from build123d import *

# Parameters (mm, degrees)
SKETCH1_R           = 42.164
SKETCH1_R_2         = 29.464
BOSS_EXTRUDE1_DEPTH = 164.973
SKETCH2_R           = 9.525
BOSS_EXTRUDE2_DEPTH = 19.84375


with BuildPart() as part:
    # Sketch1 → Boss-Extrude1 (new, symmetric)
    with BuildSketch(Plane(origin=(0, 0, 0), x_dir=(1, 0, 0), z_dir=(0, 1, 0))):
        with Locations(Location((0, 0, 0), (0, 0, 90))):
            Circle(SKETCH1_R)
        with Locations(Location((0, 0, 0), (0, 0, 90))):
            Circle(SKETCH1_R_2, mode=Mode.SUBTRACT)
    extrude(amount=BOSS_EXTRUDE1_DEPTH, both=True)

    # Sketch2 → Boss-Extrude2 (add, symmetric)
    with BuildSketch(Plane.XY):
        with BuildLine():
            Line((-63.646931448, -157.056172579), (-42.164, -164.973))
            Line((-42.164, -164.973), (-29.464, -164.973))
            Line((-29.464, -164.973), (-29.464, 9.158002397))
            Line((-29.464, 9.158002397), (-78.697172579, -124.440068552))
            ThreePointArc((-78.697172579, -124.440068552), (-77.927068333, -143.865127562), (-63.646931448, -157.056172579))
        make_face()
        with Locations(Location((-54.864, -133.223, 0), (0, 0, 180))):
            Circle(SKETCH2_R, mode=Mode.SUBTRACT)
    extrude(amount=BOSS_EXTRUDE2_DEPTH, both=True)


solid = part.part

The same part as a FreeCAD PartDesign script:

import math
import FreeCAD as App
import Part
import Sketcher

V = App.Vector
Q = App.Units.Quantity

doc = App.newDocument("Part")
body = doc.addObject("PartDesign::Body", "Body")

# Sketch on XZ plane
sketch1 = body.newObject("Sketcher::SketchObject", "Sketch")
sketch1.AttachmentSupport = (doc.getObject("XZ_Plane"), [""])
sketch1.MapMode = "FlatFace"
sketch1.addGeometry(Part.Circle(V(0, 0, 0), V(0, 0, 1), 42), False)
sketch1.addGeometry(Part.Circle(V(0, 0, 0), V(0, 0, 1), 29), False)
sketch1.addConstraint(Sketcher.Constraint("Coincident", 0, 3, -1, 1))
sketch1.addConstraint(Sketcher.Constraint("Coincident", 1, 3, -1, 1))
sketch1.addConstraint(Sketcher.Constraint("Diameter", 0, Q("3.32 in")))
sketch1.addConstraint(Sketcher.Constraint("Diameter", 1, Q("2.32 in")))
pad1 = body.newObject("PartDesign::Pad", "Pad")
pad1.Profile = sketch1
pad1.Length = Q("12.99 in")
pad1.Midplane = True

# Sketch on XY plane
sketch2 = body.newObject("Sketcher::SketchObject", "Sketch001")
sketch2.AttachmentSupport = (doc.getObject("XY_Plane"), [""])
sketch2.MapMode = "FlatFace"
sketch2.addGeometry(Part.LineSegment(V(-64, -157, 0), V(-42, -165, 0)), False)
sketch2.addGeometry(Part.LineSegment(V(-42, -165, 0), V(-29, -165, 0)), False)
sketch2.addGeometry(Part.LineSegment(V(-29, -165, 0), V(-29, 9, 0)), False)
sketch2.addGeometry(Part.LineSegment(V(-29, 9, 0), V(-79, -124, 0)), False)
sketch2.addGeometry(Part.ArcOfCircle(Part.Circle(V(-55, -133, 0), V(0, 0, 1), 25), math.radians(160), math.radians(250)), False)
sketch2.addGeometry(Part.Circle(V(-55, -133, 0), V(0, 0, 1), 10), False)
sketch2.addConstraint(Sketcher.Constraint("Coincident", 0, 2, 1, 1))
sketch2.addConstraint(Sketcher.Constraint("Coincident", 1, 2, 2, 1))
sketch2.addConstraint(Sketcher.Constraint("Coincident", 2, 2, 3, 1))
sketch2.addConstraint(Sketcher.Constraint("Tangent", 3, 2, 4, 1))
sketch2.addConstraint(Sketcher.Constraint("Tangent", 4, 2, 0, 1))
sketch2.addConstraint(Sketcher.Constraint("Horizontal", 1))
sketch2.addConstraint(Sketcher.Constraint("Vertical", 2))
sketch2.addConstraint(Sketcher.Constraint("Coincident", 5, 3, 4, 3))
sketch2.addConstraint(Sketcher.Constraint("Perpendicular", 0, 3))
sketch2.addConstraint(Sketcher.Constraint("Radius", 4, Q("1 in")))
sketch2.addConstraint(Sketcher.Constraint("Diameter", 5, Q("0.75 in")))
sketch2.addConstraint(Sketcher.Constraint("DistanceX", 1, 1, 1, 2, Q("0.5 in")))
sketch2.addConstraint(Sketcher.Constraint("DistanceX", 5, 3, 1, 2, Q("1 in")))
sketch2.addConstraint(Sketcher.Constraint("DistanceX", 4, 3, -1, 1, Q("2.16 in")))
sketch2.addConstraint(Sketcher.Constraint("DistanceY", 0, 2, 5, 3, Q("1.25 in")))
sketch2.addConstraint(Sketcher.Constraint("DistanceY", 4, 3, -1, 1, Q("5.245 in")))
pad2 = body.newObject("PartDesign::Pad", "Pad001")
pad2.Profile = sketch2
pad2.Length = Q("1.5625 in")
pad2.Midplane = True

doc.recompute()
